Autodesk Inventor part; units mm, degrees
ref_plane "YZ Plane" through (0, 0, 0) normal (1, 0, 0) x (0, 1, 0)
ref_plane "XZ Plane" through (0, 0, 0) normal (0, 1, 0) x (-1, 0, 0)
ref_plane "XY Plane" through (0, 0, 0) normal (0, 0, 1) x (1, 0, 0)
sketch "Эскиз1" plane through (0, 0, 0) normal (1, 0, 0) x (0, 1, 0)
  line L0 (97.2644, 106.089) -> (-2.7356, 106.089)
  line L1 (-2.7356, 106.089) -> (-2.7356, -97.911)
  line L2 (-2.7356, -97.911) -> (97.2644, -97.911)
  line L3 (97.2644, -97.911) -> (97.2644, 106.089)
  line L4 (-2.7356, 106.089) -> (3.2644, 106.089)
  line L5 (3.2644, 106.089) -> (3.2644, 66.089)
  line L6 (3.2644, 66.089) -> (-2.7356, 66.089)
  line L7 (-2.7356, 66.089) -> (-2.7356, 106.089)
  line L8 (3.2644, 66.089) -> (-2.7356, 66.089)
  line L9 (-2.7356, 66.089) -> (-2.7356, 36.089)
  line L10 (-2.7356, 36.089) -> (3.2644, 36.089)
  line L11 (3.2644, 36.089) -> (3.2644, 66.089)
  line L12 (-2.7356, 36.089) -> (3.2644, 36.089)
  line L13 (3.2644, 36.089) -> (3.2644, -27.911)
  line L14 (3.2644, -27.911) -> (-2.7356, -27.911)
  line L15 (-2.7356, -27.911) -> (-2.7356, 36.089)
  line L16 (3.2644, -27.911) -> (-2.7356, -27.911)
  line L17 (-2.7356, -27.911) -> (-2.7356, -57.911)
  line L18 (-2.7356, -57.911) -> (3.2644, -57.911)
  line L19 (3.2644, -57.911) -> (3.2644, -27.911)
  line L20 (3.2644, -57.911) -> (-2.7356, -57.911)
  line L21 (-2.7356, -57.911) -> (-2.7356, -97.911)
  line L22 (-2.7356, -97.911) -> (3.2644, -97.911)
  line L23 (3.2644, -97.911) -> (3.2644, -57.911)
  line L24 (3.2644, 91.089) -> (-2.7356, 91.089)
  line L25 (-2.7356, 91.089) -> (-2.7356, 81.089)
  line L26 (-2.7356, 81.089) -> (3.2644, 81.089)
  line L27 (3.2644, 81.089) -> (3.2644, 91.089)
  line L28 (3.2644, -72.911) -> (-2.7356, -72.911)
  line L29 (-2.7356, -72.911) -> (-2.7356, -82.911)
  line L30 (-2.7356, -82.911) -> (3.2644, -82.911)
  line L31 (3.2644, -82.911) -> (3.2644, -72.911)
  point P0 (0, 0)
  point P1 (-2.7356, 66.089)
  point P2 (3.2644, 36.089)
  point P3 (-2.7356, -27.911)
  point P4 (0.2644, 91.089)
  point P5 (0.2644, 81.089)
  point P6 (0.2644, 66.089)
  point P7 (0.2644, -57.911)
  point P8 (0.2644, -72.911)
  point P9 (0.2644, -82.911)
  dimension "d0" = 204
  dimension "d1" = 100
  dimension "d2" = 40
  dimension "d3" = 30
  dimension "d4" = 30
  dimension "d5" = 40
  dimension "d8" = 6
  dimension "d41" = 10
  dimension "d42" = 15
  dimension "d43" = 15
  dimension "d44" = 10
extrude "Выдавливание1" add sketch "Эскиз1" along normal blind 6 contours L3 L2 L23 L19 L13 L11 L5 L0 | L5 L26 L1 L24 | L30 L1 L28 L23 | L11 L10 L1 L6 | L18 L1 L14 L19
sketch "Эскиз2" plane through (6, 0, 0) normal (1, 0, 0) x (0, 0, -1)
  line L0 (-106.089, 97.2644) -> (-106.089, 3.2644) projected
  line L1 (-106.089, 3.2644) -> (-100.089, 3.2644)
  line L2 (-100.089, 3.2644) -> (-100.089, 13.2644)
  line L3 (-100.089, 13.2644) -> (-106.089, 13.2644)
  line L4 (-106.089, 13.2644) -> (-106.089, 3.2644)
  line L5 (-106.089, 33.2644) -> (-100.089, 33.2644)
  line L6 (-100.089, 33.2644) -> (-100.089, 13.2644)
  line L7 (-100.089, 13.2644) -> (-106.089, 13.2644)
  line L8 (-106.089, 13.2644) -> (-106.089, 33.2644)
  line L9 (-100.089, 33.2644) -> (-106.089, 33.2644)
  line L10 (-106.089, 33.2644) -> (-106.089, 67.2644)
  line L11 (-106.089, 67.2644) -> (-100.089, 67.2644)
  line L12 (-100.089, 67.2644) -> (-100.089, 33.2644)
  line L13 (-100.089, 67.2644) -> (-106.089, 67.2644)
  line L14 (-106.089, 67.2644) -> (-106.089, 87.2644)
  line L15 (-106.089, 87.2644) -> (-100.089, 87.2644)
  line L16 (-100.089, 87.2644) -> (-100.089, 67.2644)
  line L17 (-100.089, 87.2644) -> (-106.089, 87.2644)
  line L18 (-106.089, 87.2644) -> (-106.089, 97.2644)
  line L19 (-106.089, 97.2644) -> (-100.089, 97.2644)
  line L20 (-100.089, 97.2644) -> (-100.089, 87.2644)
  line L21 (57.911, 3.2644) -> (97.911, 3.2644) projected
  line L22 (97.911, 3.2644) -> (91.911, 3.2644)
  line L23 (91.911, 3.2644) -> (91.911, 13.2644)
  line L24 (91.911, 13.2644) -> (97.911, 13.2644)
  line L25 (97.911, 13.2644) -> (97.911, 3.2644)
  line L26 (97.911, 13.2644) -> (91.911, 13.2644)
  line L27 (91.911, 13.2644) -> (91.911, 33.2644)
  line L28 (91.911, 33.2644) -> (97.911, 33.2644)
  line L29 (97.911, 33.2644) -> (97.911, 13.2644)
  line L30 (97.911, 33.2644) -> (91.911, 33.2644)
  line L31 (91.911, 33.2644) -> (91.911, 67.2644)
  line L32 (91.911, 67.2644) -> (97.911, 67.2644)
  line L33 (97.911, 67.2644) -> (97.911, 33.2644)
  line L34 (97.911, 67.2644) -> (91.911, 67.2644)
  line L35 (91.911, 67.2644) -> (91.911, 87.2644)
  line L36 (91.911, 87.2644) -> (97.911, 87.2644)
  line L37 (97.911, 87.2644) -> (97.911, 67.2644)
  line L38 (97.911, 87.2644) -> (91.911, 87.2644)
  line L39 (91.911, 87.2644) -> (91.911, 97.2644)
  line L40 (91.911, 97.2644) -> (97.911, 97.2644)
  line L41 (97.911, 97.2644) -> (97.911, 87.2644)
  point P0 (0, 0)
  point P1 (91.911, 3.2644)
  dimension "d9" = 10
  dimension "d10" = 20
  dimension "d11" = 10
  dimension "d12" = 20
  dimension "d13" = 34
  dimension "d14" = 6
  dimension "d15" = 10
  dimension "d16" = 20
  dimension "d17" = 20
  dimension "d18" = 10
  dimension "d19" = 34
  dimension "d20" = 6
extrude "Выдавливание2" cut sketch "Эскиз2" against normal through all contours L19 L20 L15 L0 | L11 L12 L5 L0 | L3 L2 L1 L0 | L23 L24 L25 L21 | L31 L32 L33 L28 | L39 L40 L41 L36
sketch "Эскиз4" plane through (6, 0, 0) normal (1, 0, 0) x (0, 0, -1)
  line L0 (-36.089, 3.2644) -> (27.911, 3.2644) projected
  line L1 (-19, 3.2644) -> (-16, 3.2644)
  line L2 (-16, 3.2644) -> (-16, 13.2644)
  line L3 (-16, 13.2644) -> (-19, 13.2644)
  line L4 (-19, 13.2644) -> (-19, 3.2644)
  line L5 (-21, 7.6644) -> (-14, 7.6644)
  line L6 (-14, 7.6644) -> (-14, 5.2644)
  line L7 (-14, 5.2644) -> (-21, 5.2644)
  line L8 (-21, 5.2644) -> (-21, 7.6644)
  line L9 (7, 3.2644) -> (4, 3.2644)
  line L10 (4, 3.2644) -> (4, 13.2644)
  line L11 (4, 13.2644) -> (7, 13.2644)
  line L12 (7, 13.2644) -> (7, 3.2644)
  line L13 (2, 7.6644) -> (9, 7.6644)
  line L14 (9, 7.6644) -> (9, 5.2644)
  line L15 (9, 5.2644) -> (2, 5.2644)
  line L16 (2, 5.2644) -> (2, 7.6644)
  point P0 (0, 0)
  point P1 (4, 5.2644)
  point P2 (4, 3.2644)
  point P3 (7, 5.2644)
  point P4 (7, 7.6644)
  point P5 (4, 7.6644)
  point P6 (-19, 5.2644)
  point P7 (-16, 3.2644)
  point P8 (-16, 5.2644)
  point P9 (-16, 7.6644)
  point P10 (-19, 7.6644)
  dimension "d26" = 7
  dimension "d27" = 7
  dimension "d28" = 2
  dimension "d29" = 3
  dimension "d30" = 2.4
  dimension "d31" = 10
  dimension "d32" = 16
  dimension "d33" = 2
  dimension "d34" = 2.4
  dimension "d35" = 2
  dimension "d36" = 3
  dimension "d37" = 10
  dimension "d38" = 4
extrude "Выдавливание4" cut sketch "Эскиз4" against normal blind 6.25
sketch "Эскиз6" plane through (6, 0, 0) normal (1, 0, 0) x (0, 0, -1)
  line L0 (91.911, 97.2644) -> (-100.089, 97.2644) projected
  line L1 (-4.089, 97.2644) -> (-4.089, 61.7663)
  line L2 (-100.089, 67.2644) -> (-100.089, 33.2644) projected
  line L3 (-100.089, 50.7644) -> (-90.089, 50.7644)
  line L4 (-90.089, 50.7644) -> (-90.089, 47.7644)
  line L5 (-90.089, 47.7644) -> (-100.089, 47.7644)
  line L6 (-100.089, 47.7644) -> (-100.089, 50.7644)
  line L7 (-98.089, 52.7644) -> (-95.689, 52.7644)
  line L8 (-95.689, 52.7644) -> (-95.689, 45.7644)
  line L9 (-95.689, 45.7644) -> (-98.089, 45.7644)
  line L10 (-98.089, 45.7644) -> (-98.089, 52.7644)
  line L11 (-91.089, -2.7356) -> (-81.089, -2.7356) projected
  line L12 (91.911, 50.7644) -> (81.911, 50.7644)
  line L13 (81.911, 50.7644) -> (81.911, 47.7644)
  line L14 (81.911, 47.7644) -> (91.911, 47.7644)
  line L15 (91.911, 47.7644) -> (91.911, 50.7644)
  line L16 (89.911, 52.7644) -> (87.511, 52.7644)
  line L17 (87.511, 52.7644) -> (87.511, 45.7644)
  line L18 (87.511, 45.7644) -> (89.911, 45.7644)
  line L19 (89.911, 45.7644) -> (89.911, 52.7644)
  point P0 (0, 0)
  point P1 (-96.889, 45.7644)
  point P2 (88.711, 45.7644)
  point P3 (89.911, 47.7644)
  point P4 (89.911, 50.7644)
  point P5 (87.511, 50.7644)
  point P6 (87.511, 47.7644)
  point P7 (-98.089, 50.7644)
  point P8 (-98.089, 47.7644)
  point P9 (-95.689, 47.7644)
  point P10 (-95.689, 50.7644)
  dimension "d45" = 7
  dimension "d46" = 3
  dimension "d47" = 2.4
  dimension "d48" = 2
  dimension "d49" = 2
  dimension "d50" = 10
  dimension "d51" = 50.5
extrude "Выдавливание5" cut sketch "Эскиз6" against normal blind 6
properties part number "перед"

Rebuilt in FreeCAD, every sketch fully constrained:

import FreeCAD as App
import Part
import Sketcher
from FreeCAD import Vector


def add_polygon(sketch, points):
    """Adds a closed chain of lines whose ends are joined by coincident constraints."""
    first, n = sketch.GeometryCount, len(points)
    for a, b in zip(points, points[1:] + points[:1]):
        sketch.addGeometry(Part.LineSegment(App.Vector(*a, 0), App.Vector(*b, 0)), False)
    for i in range(n):
        sketch.addConstraint(Sketcher.Constraint("Coincident", first + i, 2, first + (i + 1) % n, 1))

doc = App.newDocument("Part")
body = doc.addObject("PartDesign::Body", "Body")

# Sketch on YZ plane
sketch1 = body.newObject("Sketcher::SketchObject", "Sketch")
sketch1.AttachmentSupport = (doc.getObject("YZ_Plane"), [""])
sketch1.MapMode = "FlatFace"
add_polygon(sketch1, [(97, -98), (97, 106), (3, 106), (3, 91), (-3, 91), (-3, 81), (3, 81), (3, 66), (-3, 66), (-3, 36), (3, 36), (3, -28), (-3, -28), (-3, -58), (3, -58), (3, -73), (-3, -73), (-3, -83), (3, -83), (3, -98)])  # lines 0-19
sketch1.addConstraint([
    Sketcher.Constraint("Vertical", 0),
    Sketcher.Constraint("Horizontal", 1),
    Sketcher.Constraint("Vertical", 2),
    Sketcher.Constraint("Horizontal", 3),
    Sketcher.Constraint("Vertical", 4),
    Sketcher.Constraint("Horizontal", 5),
    Sketcher.Constraint("Vertical", 6),
    Sketcher.Constraint("Horizontal", 7),
    Sketcher.Constraint("Vertical", 8),
    Sketcher.Constraint("Horizontal", 9),
    Sketcher.Constraint("Vertical", 10),
    Sketcher.Constraint("Horizontal", 11),
    Sketcher.Constraint("Vertical", 12),
    Sketcher.Constraint("Horizontal", 13),
    Sketcher.Constraint("Vertical", 14),
    Sketcher.Constraint("Horizontal", 15),
    Sketcher.Constraint("Vertical", 16),
    Sketcher.Constraint("Horizontal", 17),
    Sketcher.Constraint("Vertical", 18),
    Sketcher.Constraint("Horizontal", 19),
    Sketcher.Constraint("Vertical", 2, 2, 5, 2),
    Sketcher.Constraint("Vertical", 4, 2, 7, 2),
    Sketcher.Constraint("Vertical", 6, 2, 9, 2),
    Sketcher.Constraint("Vertical", 8, 2, 11, 2),
    Sketcher.Constraint("Vertical", 10, 2, 13, 2),
    Sketcher.Constraint("Vertical", 12, 2, 15, 2),
    Sketcher.Constraint("Vertical", 14, 2, 17, 2),
    Sketcher.Constraint("Equal", 2, 6),
    Sketcher.Constraint("Equal", 8, 12),
    Sketcher.Constraint("Equal", 6, 14),
    Sketcher.Constraint("Equal", 4, 16),
    Sketcher.Constraint("Equal", 14, 18),
    Sketcher.Constraint("DistanceX", 3, 2, 3, 1, 6.0),
    Sketcher.Constraint("DistanceY", 0, 1, 0, 2, 204.0),
    Sketcher.Constraint("DistanceY", 2, 2, 2, 1, 15.0),
    Sketcher.Constraint("DistanceY", 4, 2, 4, 1, 10.0),
    Sketcher.Constraint("DistanceY", 8, 2, 8, 1, 30.0),
    Sketcher.Constraint("DistanceX", 3, 2, 0, 2, 100.0),
    Sketcher.Constraint("DistanceY", -1, 1, 0, 2, 106.089),
    Sketcher.Constraint("DistanceX", -1, 1, 0, 2, 97.2644),
])
pad1 = body.newObject("PartDesign::Pad", "Pad")
pad1.Profile = sketch1
pad1.Length = 6

# Sketch on YZ plane
sketch2 = body.newObject("Sketcher::SketchObject", "Sketch001")
sketch2.AttachmentSupport = (doc.getObject("YZ_Plane"), [""])
sketch2.MapMode = "FlatFace"
sketch2.AttachmentOffset = App.Placement(Vector(0, 0, 6), App.Rotation())
add_polygon(sketch2, [(97, 100), (97, 106), (87, 106), (87, 100)])  # lines 0-3
add_polygon(sketch2, [(67, 100), (67, 106), (33, 106), (33, 100)])  # lines 4-7
add_polygon(sketch2, [(13, 100), (13, 106), (3, 106), (3, 100)])  # lines 8-11
add_polygon(sketch2, [(13, -92), (3, -92), (3, -98), (13, -98)])  # lines 12-15
add_polygon(sketch2, [(67, -92), (33, -92), (33, -98), (67, -98)])  # lines 16-19
add_polygon(sketch2, [(97, -92), (87, -92), (87, -98), (97, -98)])  # lines 20-23
sketch2.addConstraint([
    Sketcher.Constraint("Vertical", 0),
    Sketcher.Constraint("Horizontal", 1),
    Sketcher.Constraint("Vertical", 2),
    Sketcher.Constraint("Horizontal", 3),
    Sketcher.Constraint("Vertical", 4),
    Sketcher.Constraint("Horizontal", 5),
    Sketcher.Constraint("Vertical", 6),
    Sketcher.Constraint("Horizontal", 7),
    Sketcher.Constraint("Vertical", 8),
    Sketcher.Constraint("Horizontal", 9),
    Sketcher.Constraint("Vertical", 10),
    Sketcher.Constraint("Horizontal", 11),
    Sketcher.Constraint("Horizontal", 12),
    Sketcher.Constraint("Vertical", 13),
    Sketcher.Constraint("Horizontal", 14),
    Sketcher.Constraint("Vertical", 15),
    Sketcher.Constraint("Horizontal", 16),
    Sketcher.Constraint("Vertical", 17),
    Sketcher.Constraint("Horizontal", 18),
    Sketcher.Constraint("Vertical", 19),
    Sketcher.Constraint("Horizontal", 20),
    Sketcher.Constraint("Vertical", 21),
    Sketcher.Constraint("Horizontal", 22),
    Sketcher.Constraint("Vertical", 23),
    Sketcher.Constraint("Horizontal", 1, 2, 4, 2),
    Sketcher.Constraint("Horizontal", 3, 2, 6, 2),
    Sketcher.Constraint("Horizontal", 5, 2, 8, 2),
    Sketcher.Constraint("Horizontal", 7, 2, 10, 2),
    Sketcher.Constraint("Horizontal", 15, 2, 16, 2),
    Sketcher.Constraint("Horizontal", 14, 2, 17, 2),
    Sketcher.Constraint("Horizontal", 19, 2, 20, 2),
    Sketcher.Constraint("Horizontal", 18, 2, 21, 2),
    Sketcher.Constraint("Vertical", 10, 2, 12, 2),
    Sketcher.Constraint("Vertical", 11, 2, 14, 2),
    Sketcher.Constraint("Vertical", 6, 2, 16, 2),
    Sketcher.Constraint("Vertical", 7, 2, 18, 2),
    Sketcher.Constraint("Vertical", 2, 2, 20, 2),
    Sketcher.Constraint("Vertical", 3, 2, 22, 2),
    Sketcher.Constraint("Equal", 3, 9),
    Sketcher.Constraint("Equal", 10, 13),
    Sketcher.Constraint("DistanceX", 1, 2, 1, 1, 10.0),
    Sketcher.Constraint("DistanceX", 5, 2, 5, 1, 34.0),
    Sketcher.Constraint("DistanceY", 0, 1, 0, 2, 6.0),
    Sketcher.Constraint("DistanceX", 4, 2, 1, 2, 20.0),
    Sketcher.Constraint("DistanceX", 8, 2, 5, 2, 20.0),
    Sketcher.Constraint("DistanceY", 12, 2, 10, 2, 192.0),
    Sketcher.Constraint("DistanceY", -1, 1, 0, 2, 106.089),
    Sketcher.Constraint("DistanceX", -1, 1, 0, 2, 97.2644),
])
pocket1 = body.newObject("PartDesign::Pocket", "Pocket")
pocket1.Profile = sketch2
pocket1.Type = "ThroughAll"

# Sketch on YZ plane
sketch3 = body.newObject("Sketcher::SketchObject", "Sketch002")
sketch3.AttachmentSupport = (doc.getObject("YZ_Plane"), [""])
sketch3.MapMode = "FlatFace"
sketch3.AttachmentOffset = App.Placement(Vector(0, 0, 6), App.Rotation())
add_polygon(sketch3, [(5.3, 19), (3.3, 19), (3.3, 16), (5.3, 16), (5.3, 14), (7.7, 14), (7.7, 16), (13.3, 16), (13.3, 19), (7.7, 19), (7.7, 21), (5.3, 21)])  # lines 0-11
add_polygon(sketch3, [(5.3, -4), (3.3, -4), (3.3, -7), (5.3, -7), (5.3, -9), (7.7, -9), (7.7, -7), (13.3, -7), (13.3, -4), (7.7, -4), (7.7, -2), (5.3, -2)])  # lines 12-23
sketch3.addConstraint([
    Sketcher.Constraint("Horizontal", 0),
    Sketcher.Constraint("Vertical", 1),
    Sketcher.Constraint("Horizontal", 2),
    Sketcher.Constraint("Vertical", 3),
    Sketcher.Constraint("Horizontal", 4),
    Sketcher.Constraint("Vertical", 5),
    Sketcher.Constraint("Horizontal", 6),
    Sketcher.Constraint("Vertical", 7),
    Sketcher.Constraint("Horizontal", 8),
    Sketcher.Constraint("Vertical", 9),
    Sketcher.Constraint("Horizontal", 10),
    Sketcher.Constraint("Vertical", 11),
    Sketcher.Constraint("Horizontal", 12),
    Sketcher.Constraint("Vertical", 13),
    Sketcher.Constraint("Horizontal", 14),
    Sketcher.Constraint("Vertical", 15),
    Sketcher.Constraint("Horizontal", 16),
    Sketcher.Constraint("Vertical", 17),
    Sketcher.Constraint("Horizontal", 18),
    Sketcher.Constraint("Vertical", 19),
    Sketcher.Constraint("Horizontal", 20),
    Sketcher.Constraint("Vertical", 21),
    Sketcher.Constraint("Horizontal", 22),
    Sketcher.Constraint("Vertical", 23),
    Sketcher.Constraint("Horizontal", 2, 2, 5, 2),
    Sketcher.Constraint("Horizontal", 0, 2, 7, 2),
    Sketcher.Constraint("Horizontal", 14, 2, 17, 2),
    Sketcher.Constraint("Horizontal", 12, 2, 19, 2),
    Sketcher.Constraint("Vertical", 5, 2, 8, 2),
    Sketcher.Constraint("Vertical", 3, 2, 10, 2),
    Sketcher.Constraint("Vertical", 1, 2, 12, 2),
    Sketcher.Constraint("Vertical", 11, 2, 14, 2),
    Sketcher.Constraint("Vertical", 9, 2, 16, 2),
    Sketcher.Constraint("Vertical", 7, 2, 18, 2),
    Sketcher.Constraint("Vertical", 17, 2, 20, 2),
    Sketcher.Constraint("Vertical", 15, 2, 22, 2),
    Sketcher.Constraint("Equal", 14, 3),
    Sketcher.Constraint("Equal", 5, 9),
    Sketcher.Constraint("Equal", 7, 13),
    Sketcher.Constraint("Equal", 11, 15),
    Sketcher.Constraint("Equal", 17, 21),
    Sketcher.Constraint("DistanceX", 0, 2, 0, 1, 2.0),
    Sketcher.Constraint("DistanceY", 1, 2, 1, 1, 3.0),
    Sketcher.Constraint("DistanceX", 4, 1, 4, 2, 2.4),
    Sketcher.Constraint("DistanceY", -1, 1, 1, 2, 16.0),
    Sketcher.Constraint("DistanceY", 12, 2, -1, 1, 4.0),
    Sketcher.Constraint("DistanceX", 1, 2, 6, 2, 10.0),
    Sketcher.Constraint("DistanceX", -1, 1, 0, 2, 3.2644),
])
pocket2 = body.newObject("PartDesign::Pocket", "Pocket001")
pocket2.Profile = sketch3
pocket2.Length = 6.25

# Sketch on YZ plane
sketch4 = body.newObject("Sketcher::SketchObject", "Sketch003")
sketch4.AttachmentSupport = (doc.getObject("YZ_Plane"), [""])
sketch4.MapMode = "FlatFace"
sketch4.AttachmentOffset = App.Placement(Vector(0, 0, 6), App.Rotation())
add_polygon(sketch4, [(50.8, 98.1), (50.8, 100.1), (47.8, 100.1), (47.8, 98.1), (45.8, 98.1), (45.8, 95.7), (47.8, 95.7), (47.8, 90.1), (50.8, 90.1), (50.8, 95.7), (52.8, 95.7), (52.8, 98.1)])  # lines 0-11
add_polygon(sketch4, [(47.8, -91.9), (50.8, -91.9), (50.8, -89.9), (52.8, -89.9), (52.8, -87.5), (50.8, -87.5), (50.8, -81.9), (47.8, -81.9), (47.8, -87.5), (45.8, -87.5), (45.8, -89.9), (47.8, -89.9)])  # lines 12-23
sketch4.addConstraint([
    Sketcher.Constraint("Vertical", 0),
    Sketcher.Constraint("Horizontal", 1),
    Sketcher.Constraint("Vertical", 2),
    Sketcher.Constraint("Horizontal", 3),
    Sketcher.Constraint("Vertical", 4),
    Sketcher.Constraint("Horizontal", 5),
    Sketcher.Constraint("Vertical", 6),
    Sketcher.Constraint("Horizontal", 7),
    Sketcher.Constraint("Vertical", 8),
    Sketcher.Constraint("Horizontal", 9),
    Sketcher.Constraint("Vertical", 10),
    Sketcher.Constraint("Horizontal", 11),
    Sketcher.Constraint("Horizontal", 12),
    Sketcher.Constraint("Vertical", 13),
    Sketcher.Constraint("Horizontal", 14),
    Sketcher.Constraint("Vertical", 15),
    Sketcher.Constraint("Horizontal", 16),
    Sketcher.Constraint("Vertical", 17),
    Sketcher.Constraint("Horizontal", 18),
    Sketcher.Constraint("Vertical", 19),
    Sketcher.Constraint("Horizontal", 20),
    Sketcher.Constraint("Vertical", 21),
    Sketcher.Constraint("Horizontal", 22),
    Sketcher.Constraint("Vertical", 23),
    Sketcher.Constraint("Horizontal", 5, 2, 8, 2),
    Sketcher.Constraint("Horizontal", 3, 2, 10, 2),
    Sketcher.Constraint("Horizontal", 16, 2, 19, 2),
    Sketcher.Constraint("Horizontal", 14, 2, 21, 2),
    Sketcher.Constraint("Vertical", 2, 2, 5, 2),
    Sketcher.Constraint("Vertical", 0, 2, 7, 2),
    Sketcher.Constraint("Vertical", 11, 2, 12, 2),
    Sketcher.Constraint("Vertical", 10, 2, 14, 2),
    Sketcher.Constraint("Vertical", 13, 2, 16, 2),
    Sketcher.Constraint("Vertical", 6, 2, 18, 2),
    Sketcher.Constraint("Vertical", 4, 2, 20, 2),
    Sketcher.Constraint("Vertical", 19, 2, 22, 2),
    Sketcher.Constraint("Equal", 5, 9),
    Sketcher.Constraint("Equal", 22, 0),
    Sketcher.Constraint("Equal", 2, 13),
    Sketcher.Constraint("Equal", 10, 15),
    Sketcher.Constraint("Equal", 8, 17),
    Sketcher.Constraint("DistanceX", 1, 2, 1, 1, 3.0),
    Sketcher.Constraint("DistanceX", 3, 2, 3, 1, 2.0),
    Sketcher.Constraint("DistanceY", 4, 2, 4, 1, 2.4),
    Sketcher.Constraint("DistanceY", 6, 2, 1, 2, 10.0),
    Sketcher.Constraint("DistanceY", 12, 2, 7, 2, 182.0),
    Sketcher.Constraint("DistanceY", -1, 1, 0, 2, 100.089),
    Sketcher.Constraint("DistanceX", -1, 1, 0, 2, 50.7644),
])
pocket3 = body.newObject("PartDesign::Pocket", "Pocket002")
pocket3.Profile = sketch4
pocket3.Length = 6

doc.recompute()
